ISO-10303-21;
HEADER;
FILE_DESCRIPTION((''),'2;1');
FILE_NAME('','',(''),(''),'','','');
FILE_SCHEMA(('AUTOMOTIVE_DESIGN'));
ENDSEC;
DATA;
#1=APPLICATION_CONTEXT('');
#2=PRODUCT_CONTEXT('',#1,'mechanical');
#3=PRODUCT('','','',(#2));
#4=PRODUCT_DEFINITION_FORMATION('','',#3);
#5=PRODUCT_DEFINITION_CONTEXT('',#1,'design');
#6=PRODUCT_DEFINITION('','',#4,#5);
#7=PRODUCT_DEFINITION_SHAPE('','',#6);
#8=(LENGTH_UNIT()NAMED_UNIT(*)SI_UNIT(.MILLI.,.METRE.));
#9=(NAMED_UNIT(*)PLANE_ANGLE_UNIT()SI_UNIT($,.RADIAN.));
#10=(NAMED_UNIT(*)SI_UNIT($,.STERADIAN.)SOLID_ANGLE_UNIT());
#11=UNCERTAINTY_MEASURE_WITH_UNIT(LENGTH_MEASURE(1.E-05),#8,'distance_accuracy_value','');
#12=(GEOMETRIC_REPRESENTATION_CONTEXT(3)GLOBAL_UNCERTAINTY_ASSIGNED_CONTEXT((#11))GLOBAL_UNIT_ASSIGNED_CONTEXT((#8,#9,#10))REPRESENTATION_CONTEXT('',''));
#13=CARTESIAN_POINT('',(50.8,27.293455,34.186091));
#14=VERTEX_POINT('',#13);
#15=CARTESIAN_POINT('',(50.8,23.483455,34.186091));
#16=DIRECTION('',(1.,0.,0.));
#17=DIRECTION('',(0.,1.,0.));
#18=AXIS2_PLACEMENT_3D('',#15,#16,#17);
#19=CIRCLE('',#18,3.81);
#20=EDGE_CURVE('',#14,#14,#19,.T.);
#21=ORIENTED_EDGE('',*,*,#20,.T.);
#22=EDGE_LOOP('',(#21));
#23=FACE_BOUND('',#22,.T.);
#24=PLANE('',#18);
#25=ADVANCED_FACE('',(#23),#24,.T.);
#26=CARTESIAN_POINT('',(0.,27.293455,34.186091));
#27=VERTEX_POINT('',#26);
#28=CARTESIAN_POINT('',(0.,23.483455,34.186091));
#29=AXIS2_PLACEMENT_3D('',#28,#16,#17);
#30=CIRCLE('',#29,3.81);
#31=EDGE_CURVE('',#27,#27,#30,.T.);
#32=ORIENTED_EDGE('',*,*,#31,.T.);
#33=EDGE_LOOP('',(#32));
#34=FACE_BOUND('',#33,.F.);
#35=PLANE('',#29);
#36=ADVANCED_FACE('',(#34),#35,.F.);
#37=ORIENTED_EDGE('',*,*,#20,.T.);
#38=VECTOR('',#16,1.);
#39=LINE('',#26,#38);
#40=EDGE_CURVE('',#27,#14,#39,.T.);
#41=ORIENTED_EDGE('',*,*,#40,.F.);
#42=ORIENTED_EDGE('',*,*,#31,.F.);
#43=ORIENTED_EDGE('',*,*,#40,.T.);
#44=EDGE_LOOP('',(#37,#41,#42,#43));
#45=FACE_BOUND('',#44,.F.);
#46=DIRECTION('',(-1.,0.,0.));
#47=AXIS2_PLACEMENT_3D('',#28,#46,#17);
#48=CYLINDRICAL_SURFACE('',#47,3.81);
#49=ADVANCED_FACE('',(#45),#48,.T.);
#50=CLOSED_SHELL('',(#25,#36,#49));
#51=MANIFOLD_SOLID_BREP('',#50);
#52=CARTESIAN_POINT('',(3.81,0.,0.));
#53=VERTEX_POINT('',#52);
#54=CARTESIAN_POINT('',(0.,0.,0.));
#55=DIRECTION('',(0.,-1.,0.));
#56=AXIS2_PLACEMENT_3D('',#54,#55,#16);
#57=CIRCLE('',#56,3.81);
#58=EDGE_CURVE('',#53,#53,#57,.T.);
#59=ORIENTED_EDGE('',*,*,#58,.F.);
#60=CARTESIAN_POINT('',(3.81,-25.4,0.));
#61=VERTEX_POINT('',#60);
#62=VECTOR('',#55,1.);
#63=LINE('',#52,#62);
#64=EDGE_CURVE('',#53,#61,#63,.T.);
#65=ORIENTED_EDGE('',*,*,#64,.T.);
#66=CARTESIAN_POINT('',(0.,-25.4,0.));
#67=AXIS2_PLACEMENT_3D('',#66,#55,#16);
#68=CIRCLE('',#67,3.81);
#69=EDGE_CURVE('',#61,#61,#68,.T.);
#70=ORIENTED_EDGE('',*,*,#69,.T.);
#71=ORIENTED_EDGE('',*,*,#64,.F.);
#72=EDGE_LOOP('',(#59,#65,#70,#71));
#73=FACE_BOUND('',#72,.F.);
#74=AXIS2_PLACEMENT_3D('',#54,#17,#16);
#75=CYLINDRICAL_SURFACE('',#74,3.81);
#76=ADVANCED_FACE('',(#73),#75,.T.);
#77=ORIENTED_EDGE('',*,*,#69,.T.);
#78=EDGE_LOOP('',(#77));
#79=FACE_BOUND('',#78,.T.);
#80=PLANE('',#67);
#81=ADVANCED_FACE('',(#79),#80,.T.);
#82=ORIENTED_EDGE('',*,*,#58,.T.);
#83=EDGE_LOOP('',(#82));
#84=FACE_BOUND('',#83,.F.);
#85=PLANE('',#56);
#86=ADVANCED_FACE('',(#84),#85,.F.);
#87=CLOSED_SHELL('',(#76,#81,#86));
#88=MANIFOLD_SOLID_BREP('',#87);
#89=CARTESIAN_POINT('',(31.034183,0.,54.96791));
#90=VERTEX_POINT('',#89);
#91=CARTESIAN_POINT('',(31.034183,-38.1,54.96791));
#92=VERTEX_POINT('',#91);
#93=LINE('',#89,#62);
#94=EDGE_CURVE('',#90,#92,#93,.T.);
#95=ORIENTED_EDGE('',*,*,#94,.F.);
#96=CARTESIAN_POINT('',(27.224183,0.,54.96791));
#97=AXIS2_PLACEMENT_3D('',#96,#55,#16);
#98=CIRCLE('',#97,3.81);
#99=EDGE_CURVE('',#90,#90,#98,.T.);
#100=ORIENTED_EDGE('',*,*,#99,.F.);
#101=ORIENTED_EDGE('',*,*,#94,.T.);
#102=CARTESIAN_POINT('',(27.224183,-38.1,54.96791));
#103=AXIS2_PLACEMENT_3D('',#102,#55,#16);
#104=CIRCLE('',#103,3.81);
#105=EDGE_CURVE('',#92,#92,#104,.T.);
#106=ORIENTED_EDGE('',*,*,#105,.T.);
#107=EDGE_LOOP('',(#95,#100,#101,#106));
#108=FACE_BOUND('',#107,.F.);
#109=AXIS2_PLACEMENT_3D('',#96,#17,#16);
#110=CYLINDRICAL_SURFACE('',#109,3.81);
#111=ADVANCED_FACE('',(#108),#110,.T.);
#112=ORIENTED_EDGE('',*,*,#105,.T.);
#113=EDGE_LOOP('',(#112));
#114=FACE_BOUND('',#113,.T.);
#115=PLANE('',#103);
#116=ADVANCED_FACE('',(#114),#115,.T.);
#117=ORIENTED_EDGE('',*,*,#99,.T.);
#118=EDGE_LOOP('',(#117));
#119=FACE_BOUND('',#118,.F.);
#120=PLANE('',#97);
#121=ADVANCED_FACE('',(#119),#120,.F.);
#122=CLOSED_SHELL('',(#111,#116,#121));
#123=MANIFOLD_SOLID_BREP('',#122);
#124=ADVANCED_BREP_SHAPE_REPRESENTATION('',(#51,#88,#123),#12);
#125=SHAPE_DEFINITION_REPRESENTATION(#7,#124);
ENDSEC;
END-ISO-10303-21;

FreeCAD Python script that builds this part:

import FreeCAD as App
import Part
import Sketcher
from FreeCAD import Vector
Q = App.Units.Quantity

doc = App.newDocument("Part")
body = doc.addObject("PartDesign::Body", "Body")

sketch1 = body.newObject("Sketcher::SketchObject", "Sketch")
sketch1.AttachmentSupport = (doc.getObject("XZ_Plane"), [""])
sketch1.MapMode = "FlatFace"
sketch1.addGeometry(Part.Circle(Vector(0, 0, 0), Vector(0, 0, 1), 3.8), False)
sketch1.addConstraint([
    Sketcher.Constraint("Coincident", 0, 3, -1, 1),
    Sketcher.Constraint("Diameter", 0, Q("0.3 in")),
])
pad1 = body.newObject("PartDesign::Pad", "Pad")
pad1.Profile = sketch1
pad1.Length = Q("1 in")
body2 = doc.addObject("PartDesign::Body", "Body001")

sketch2 = body2.newObject("Sketcher::SketchObject", "Sketch001")
sketch2.AttachmentSupport = (doc.getObject("XZ_Plane001"), [""])
sketch2.MapMode = "FlatFace"
sketch2.addGeometry(Part.Circle(Vector(27.2, 55, 0), Vector(0, 0, 1), 3.8), False)
sketch2.addConstraint([
    Sketcher.Constraint("Diameter", 0, Q("0.3 in")),
    Sketcher.Constraint("DistanceY", -1, 1, 0, 3, Q("54.96791 mm")),
    Sketcher.Constraint("DistanceX", -1, 1, 0, 3, Q("27.224183 mm")),
])
pad2 = body2.newObject("PartDesign::Pad", "Pad001")
pad2.Profile = sketch2
pad2.Length = Q("1.5 in")
body3 = doc.addObject("PartDesign::Body", "Body002")

sketch3 = body3.newObject("Sketcher::SketchObject", "Sketch002")
sketch3.AttachmentSupport = (doc.getObject("YZ_Plane002"), [""])
sketch3.MapMode = "FlatFace"
sketch3.addGeometry(Part.Circle(Vector(23.5, 34.2, 0), Vector(0, 0, 1), 3.8), False)
sketch3.addConstraint([
    Sketcher.Constraint("Diameter", 0, Q("0.3 in")),
    Sketcher.Constraint("DistanceY", -1, 1, 0, 3, Q("34.186091 mm")),
    Sketcher.Constraint("DistanceX", -1, 1, 0, 3, Q("23.483455 mm")),
])
pad3 = body3.newObject("PartDesign::Pad", "Pad002")
pad3.Profile = sketch3
pad3.Length = Q("2 in")

doc.recompute()
